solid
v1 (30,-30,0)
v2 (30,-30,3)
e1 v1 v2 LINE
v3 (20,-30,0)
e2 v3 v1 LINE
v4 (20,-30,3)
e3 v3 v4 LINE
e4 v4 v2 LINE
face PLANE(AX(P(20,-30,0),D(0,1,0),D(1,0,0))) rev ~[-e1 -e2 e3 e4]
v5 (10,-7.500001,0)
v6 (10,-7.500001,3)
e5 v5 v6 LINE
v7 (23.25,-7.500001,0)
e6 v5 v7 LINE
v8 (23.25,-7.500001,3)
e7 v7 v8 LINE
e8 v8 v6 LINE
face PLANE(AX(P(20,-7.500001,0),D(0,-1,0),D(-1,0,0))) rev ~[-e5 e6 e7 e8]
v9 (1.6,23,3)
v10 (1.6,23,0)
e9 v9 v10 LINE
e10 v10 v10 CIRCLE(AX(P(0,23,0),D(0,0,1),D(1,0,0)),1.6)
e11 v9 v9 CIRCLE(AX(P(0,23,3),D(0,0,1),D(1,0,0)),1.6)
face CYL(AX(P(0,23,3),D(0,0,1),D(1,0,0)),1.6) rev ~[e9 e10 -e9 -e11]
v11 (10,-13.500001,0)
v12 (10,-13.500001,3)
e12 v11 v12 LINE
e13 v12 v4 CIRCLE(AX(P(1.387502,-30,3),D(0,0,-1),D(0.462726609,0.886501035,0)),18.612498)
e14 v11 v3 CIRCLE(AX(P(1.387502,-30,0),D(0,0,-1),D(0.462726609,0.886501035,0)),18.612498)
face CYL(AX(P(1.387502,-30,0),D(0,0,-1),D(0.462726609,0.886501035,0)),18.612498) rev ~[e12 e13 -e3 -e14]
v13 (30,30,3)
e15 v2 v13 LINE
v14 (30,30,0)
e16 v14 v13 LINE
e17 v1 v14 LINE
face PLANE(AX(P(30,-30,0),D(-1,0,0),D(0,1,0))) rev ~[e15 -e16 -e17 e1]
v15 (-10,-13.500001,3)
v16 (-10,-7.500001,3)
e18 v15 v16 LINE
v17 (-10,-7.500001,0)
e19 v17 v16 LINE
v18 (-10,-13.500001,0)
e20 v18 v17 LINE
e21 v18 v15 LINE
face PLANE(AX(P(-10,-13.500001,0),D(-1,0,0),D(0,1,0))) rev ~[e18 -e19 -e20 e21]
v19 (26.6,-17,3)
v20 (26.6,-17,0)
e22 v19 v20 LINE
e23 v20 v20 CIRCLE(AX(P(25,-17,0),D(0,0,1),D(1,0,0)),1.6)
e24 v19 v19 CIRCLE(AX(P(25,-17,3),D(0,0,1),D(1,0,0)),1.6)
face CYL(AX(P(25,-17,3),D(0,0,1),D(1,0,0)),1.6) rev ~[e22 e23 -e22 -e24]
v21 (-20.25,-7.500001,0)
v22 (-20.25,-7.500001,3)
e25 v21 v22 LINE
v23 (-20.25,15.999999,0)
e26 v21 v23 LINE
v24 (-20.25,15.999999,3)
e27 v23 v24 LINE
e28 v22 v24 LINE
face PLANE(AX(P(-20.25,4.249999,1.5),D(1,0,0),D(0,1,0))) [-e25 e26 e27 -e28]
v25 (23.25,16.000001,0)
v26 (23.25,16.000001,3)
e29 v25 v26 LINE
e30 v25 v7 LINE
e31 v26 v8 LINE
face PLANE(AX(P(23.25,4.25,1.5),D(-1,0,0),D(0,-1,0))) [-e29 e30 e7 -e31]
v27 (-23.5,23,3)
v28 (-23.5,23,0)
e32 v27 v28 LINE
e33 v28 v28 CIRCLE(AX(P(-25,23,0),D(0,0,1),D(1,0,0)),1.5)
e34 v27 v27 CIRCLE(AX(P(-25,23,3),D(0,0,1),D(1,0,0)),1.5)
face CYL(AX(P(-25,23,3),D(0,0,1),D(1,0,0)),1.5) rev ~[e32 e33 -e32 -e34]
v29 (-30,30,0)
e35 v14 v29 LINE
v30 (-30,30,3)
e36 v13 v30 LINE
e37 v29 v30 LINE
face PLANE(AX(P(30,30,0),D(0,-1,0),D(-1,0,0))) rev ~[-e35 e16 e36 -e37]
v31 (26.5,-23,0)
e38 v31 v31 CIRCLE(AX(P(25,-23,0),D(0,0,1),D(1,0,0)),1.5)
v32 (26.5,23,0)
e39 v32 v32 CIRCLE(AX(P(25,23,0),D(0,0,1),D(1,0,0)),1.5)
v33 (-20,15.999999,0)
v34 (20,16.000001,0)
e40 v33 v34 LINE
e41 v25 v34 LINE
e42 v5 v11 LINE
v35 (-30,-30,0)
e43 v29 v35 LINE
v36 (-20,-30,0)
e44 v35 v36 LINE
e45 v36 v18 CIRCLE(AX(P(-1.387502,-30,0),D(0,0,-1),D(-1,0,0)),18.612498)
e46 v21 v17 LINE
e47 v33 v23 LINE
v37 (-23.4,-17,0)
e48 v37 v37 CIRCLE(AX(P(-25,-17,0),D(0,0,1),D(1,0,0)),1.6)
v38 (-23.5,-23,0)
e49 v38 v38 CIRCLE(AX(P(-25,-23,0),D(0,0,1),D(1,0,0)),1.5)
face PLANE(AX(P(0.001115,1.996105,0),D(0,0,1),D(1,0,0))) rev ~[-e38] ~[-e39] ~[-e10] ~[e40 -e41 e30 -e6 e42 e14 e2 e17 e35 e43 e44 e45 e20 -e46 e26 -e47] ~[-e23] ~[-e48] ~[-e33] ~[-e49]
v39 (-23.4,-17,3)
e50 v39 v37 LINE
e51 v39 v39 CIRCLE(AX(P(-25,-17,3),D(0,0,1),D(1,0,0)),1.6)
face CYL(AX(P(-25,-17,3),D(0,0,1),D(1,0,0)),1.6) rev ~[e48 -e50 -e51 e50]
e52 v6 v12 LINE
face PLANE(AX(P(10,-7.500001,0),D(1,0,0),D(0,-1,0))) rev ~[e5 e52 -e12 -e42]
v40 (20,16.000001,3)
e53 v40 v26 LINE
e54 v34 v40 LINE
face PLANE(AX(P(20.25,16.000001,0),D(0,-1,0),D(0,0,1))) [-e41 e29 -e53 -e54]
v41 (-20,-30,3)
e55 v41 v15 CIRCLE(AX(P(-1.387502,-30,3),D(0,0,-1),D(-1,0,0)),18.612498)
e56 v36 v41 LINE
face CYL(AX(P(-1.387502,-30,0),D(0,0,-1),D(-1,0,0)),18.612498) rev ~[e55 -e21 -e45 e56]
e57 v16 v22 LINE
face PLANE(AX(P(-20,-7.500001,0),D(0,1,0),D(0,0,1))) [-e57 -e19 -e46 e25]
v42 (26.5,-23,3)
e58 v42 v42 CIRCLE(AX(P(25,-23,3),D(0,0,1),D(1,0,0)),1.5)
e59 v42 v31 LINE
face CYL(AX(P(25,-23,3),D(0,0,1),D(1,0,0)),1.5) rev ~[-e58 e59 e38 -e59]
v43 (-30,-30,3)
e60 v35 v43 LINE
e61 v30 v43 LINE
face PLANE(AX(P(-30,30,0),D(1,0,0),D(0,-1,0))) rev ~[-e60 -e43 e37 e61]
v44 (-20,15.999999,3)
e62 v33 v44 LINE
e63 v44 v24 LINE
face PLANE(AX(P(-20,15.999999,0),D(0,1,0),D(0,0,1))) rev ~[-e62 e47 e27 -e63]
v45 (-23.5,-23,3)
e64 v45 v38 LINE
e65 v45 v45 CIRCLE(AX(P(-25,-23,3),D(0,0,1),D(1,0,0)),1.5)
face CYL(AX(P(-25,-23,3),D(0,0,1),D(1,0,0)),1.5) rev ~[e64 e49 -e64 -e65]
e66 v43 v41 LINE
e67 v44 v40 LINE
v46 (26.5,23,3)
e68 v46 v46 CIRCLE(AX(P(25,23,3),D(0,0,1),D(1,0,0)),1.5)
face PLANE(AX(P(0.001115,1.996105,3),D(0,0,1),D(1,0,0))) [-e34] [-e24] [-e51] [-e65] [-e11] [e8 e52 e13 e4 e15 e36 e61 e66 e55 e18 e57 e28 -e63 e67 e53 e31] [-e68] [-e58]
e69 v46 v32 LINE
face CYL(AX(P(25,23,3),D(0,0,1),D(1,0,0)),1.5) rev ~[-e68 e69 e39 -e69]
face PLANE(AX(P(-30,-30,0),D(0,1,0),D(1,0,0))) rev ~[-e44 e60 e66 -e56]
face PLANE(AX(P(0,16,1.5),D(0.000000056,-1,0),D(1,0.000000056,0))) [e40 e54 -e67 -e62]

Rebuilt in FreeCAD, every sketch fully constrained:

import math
import FreeCAD as App
import Part
import Sketcher

V = App.Vector
Q = App.Units.Quantity


def add_polygon(sketch, points):
    """Adds a closed chain of lines whose ends are joined by coincident constraints."""
    first, n = sketch.GeometryCount, len(points)
    for a, b in zip(points, points[1:] + points[:1]):
        sketch.addGeometry(Part.LineSegment(App.Vector(*a, 0), App.Vector(*b, 0)), False)
    for i in range(n):
        sketch.addConstraint(Sketcher.Constraint("Coincident", first + i, 2, first + (i + 1) % n, 1))

doc = App.newDocument("Part")
body = doc.addObject("PartDesign::Body", "Body")

# Sketch on XY plane
sketch1 = body.newObject("Sketcher::SketchObject", "Sketch")
sketch1.AttachmentSupport = (doc.getObject("XY_Plane"), [""])
sketch1.MapMode = "FlatFace"
sketch1.addGeometry([
    Part.LineSegment(V(30, -30, 0), V(30, 30, 0)),  # 0
    Part.LineSegment(V(30, 30, 0), V(-30, 30, 0)),  # 1
    Part.LineSegment(V(-30, 30, 0), V(-30, -30, 0)),  # 2
    Part.LineSegment(V(-30, -30, 0), V(-20, -30, 0)),  # 3
    Part.ArcOfCircle(Part.Circle(V(-1, -30, 0), V(0, 0, 1), 19), math.radians(118), math.radians(180)),  # 4
    Part.LineSegment(V(-10, -14, 0), V(-10, -8, 0)),  # 5
    Part.LineSegment(V(-10, -8, 0), V(-20, -8, 0)),  # 6
    Part.LineSegment(V(-20, -8, 0), V(-20, 15, 0)),  # 7
    Part.LineSegment(V(-20, 15, 0), V(20, 16, 0)),  # 8
    Part.LineSegment(V(20, 16, 0), V(20, -8, 0)),  # 9
    Part.LineSegment(V(20, -8, 0), V(10, -8, 0)),  # 10
    Part.LineSegment(V(10, -8, 0), V(10, -14, 0)),  # 11
    Part.ArcOfCircle(Part.Circle(V(1, -30, 0), V(0, 0, 1), 19), math.radians(0), math.radians(62)),  # 12
    Part.LineSegment(V(20, -30, 0), V(30, -30, 0)),  # 13
], False)
sketch1.addConstraint([
    Sketcher.Constraint("Coincident", 0, 2, 1, 1),
    Sketcher.Constraint("Coincident", 1, 2, 2, 1),
    Sketcher.Constraint("Coincident", 2, 2, 3, 1),
    Sketcher.Constraint("Coincident", 3, 2, 4, 2),
    Sketcher.Constraint("Coincident", 4, 1, 5, 1),
    Sketcher.Constraint("Coincident", 5, 2, 6, 1),
    Sketcher.Constraint("Coincident", 6, 2, 7, 1),
    Sketcher.Constraint("Coincident", 7, 2, 8, 1),
    Sketcher.Constraint("Coincident", 8, 2, 9, 1),
    Sketcher.Constraint("Coincident", 9, 2, 10, 1),
    Sketcher.Constraint("Coincident", 10, 2, 11, 1),
    Sketcher.Constraint("Coincident", 11, 2, 12, 2),
    Sketcher.Constraint("Coincident", 12, 1, 13, 1),
    Sketcher.Constraint("Coincident", 13, 2, 0, 1),
    Sketcher.Constraint("Vertical", 0),
    Sketcher.Constraint("Horizontal", 1),
    Sketcher.Constraint("Vertical", 2),
    Sketcher.Constraint("Horizontal", 3),
    Sketcher.Constraint("Vertical", 5),
    Sketcher.Constraint("Horizontal", 6),
    Sketcher.Constraint("Vertical", 7),
    Sketcher.Constraint("Vertical", 9),
    Sketcher.Constraint("Horizontal", 10),
    Sketcher.Constraint("Vertical", 11),
    Sketcher.Constraint("Horizontal", 13),
    Sketcher.Constraint("Equal", 4, 12),
    Sketcher.Constraint("Symmetric", 0, 2, 2, 2, -1, 1),
    Sketcher.Constraint("Symmetric", 4, 3, 12, 3, -2),
    Sketcher.Constraint("Symmetric", 7, 2, 8, 2, -2),
    Sketcher.Constraint("Symmetric", 5, 2, 10, 2, -2),
    Sketcher.Constraint("Horizontal", 12, 3, 2, 2),
    Sketcher.Constraint("Horizontal", 3, 2, 12, 1),
    Sketcher.Constraint("Vertical", 3, 2, 6, 2),
    Sketcher.Constraint("Equal", 3, 6),
    Sketcher.Constraint("Equal", 1, 0),
    Sketcher.Constraint("DistanceX", 1, 2, 1, 1, Q("60 mm")),
    Sketcher.Constraint("DistanceX", 3, 1, 3, 2, Q("10 mm")),
    Sketcher.Constraint("DistanceY", 5, 1, 5, 2, Q("6 mm")),
    Sketcher.Constraint("DistanceY", 7, 1, 7, 2, Q("23 mm")),
    Sketcher.Constraint("DistanceY", 4, 1, -1, 1, Q("13.500001 mm")),
])
pad1 = body.newObject("PartDesign::Pad", "Pad")
pad1.Profile = sketch1
pad1.Length = 3

# Sketch on XY plane
sketch2 = body.newObject("Sketcher::SketchObject", "Sketch001")
sketch2.AttachmentSupport = (doc.getObject("XY_Plane"), [""])
sketch2.MapMode = "FlatFace"
sketch2.AttachmentOffset = App.Placement(V(0, 0, 3), App.Rotation())
sketch2.addGeometry([
    Part.Circle(V(-25, 23, 0), V(0, 0, 1), 1.5),
    Part.Circle(V(25, 23, 0), V(0, 0, 1), 1.5),
    Part.Circle(V(-25, -23, 0), V(0, 0, 1), 1.5),
    Part.Circle(V(25, -23, 0), V(0, 0, 1), 1.5),
], False)
sketch2.addConstraint([
    Sketcher.Constraint("Equal", 0, 1),
    Sketcher.Constraint("Equal", 1, 2),
    Sketcher.Constraint("Equal", 2, 3),
    Sketcher.Constraint("Symmetric", 1, 3, 2, 3, -1, 1),
    Sketcher.Constraint("Symmetric", 0, 3, 3, 3, -1, 1),
    Sketcher.Constraint("Symmetric", 0, 3, 1, 3, -2),
    Sketcher.Constraint("Diameter", 0, Q("3 mm")),
    Sketcher.Constraint("DistanceX", 0, 3, -1, 1, Q("25 mm")),
    Sketcher.Constraint("DistanceY", -1, 1, 0, 3, Q("23 mm")),
])
pocket1 = body.newObject("PartDesign::Pocket", "Pocket")
pocket1.Profile = sketch2
pocket1.Type = "ThroughAll"

# Sketch on XY plane
sketch3 = body.newObject("Sketcher::SketchObject", "Sketch002")
sketch3.AttachmentSupport = (doc.getObject("XY_Plane"), [""])
sketch3.MapMode = "FlatFace"
sketch3.AttachmentOffset = App.Placement(V(0, 0, 3), App.Rotation())
sketch3.addGeometry([
    Part.Circle(V(25, -17, 0), V(0, 0, 1), 1.6),
    Part.Circle(V(-25, -17, 0), V(0, 0, 1), 1.6),
    Part.Circle(V(0, 23, 0), V(0, 0, 1), 1.6),
], False)
sketch3.addConstraint([
    Sketcher.Constraint("Equal", 0, 1),
    Sketcher.Constraint("Equal", 1, 2),
    Sketcher.Constraint("Symmetric", 0, 3, 1, 3, -2),
    Sketcher.Constraint("PointOnObject", 2, 3, -2),
    Sketcher.Constraint("Diameter", 0, Q("3.2 mm")),
    Sketcher.Constraint("DistanceX", -1, 1, 0, 3, Q("25 mm")),
    Sketcher.Constraint("DistanceY", 0, 3, -1, 1, Q("17 mm")),
    Sketcher.Constraint("DistanceY", -1, 1, 2, 3, Q("23 mm")),
])
pocket2 = body.newObject("PartDesign::Pocket", "Pocket001")
pocket2.Profile = sketch3
pocket2.Type = "ThroughAll"

# Sketch on XZ plane
sketch4 = body.newObject("Sketcher::SketchObject", "Sketch003")
sketch4.AttachmentSupport = (doc.getObject("XZ_Plane"), [""])
sketch4.MapMode = "FlatFace"
sketch4.AttachmentOffset = App.Placement(V(0, 0, -15.5), App.Rotation())
add_polygon(sketch4, [(-20, 3), (-20, 0), (20, 0), (20, 3)])  # lines 0-3
sketch4.addConstraint([
    Sketcher.Constraint("Vertical", 0),
    Sketcher.Constraint("Horizontal", 1),
    Sketcher.Constraint("Vertical", 2),
    Sketcher.Constraint("Horizontal", 3),
    Sketcher.Constraint("Symmetric", 0, 2, 1, 2, -1, 1),
    Sketcher.Constraint("DistanceX", 1, 1, 1, 2, Q("40 mm")),
    Sketcher.Constraint("DistanceY", 0, 2, 0, 1, Q("3 mm")),
])
pocket3 = body.newObject("PartDesign::Pocket", "Pocket002")
pocket3.Profile = sketch4
pocket3.Length = 0.5

# Sketch on YZ plane
sketch5 = body.newObject("Sketcher::SketchObject", "Sketch004")
sketch5.AttachmentSupport = (doc.getObject("YZ_Plane"), [""])
sketch5.MapMode = "FlatFace"
sketch5.AttachmentOffset = App.Placement(V(0, 0, -20), App.Rotation())
add_polygon(sketch5, [(-7.5, 3), (-7.5, 0), (16, 0), (16, 3)])  # lines 0-3
sketch5.addConstraint([
    Sketcher.Constraint("Vertical", 0),
    Sketcher.Constraint("Horizontal", 1),
    Sketcher.Constraint("Vertical", 2),
    Sketcher.Constraint("Horizontal", 3),
    Sketcher.Constraint("PointOnObject", 0, 2, -1),
    Sketcher.Constraint("DistanceY", 0, 2, 0, 1, Q("3 mm")),
    Sketcher.Constraint("DistanceX", 1, 1, 1, 2, Q("23.5 mm")),
    Sketcher.Constraint("DistanceX", -1, 1, 1, 2, Q("15.999999 mm")),
])
pocket4 = body.newObject("PartDesign::Pocket", "Pocket003")
pocket4.Profile = sketch5
pocket4.Length = 0.25

# Sketch on YZ plane
sketch6 = body.newObject("Sketcher::SketchObject", "Sketch005")
sketch6.AttachmentSupport = (doc.getObject("YZ_Plane"), [""])
sketch6.MapMode = "FlatFace"
sketch6.AttachmentOffset = App.Placement(V(0, 0, 20), App.Rotation())
add_polygon(sketch6, [(16, 3), (16, 0), (-7.5, 0), (-7.5, 3)])  # lines 0-3
sketch6.addConstraint([
    Sketcher.Constraint("Vertical", 0),
    Sketcher.Constraint("Horizontal", 1),
    Sketcher.Constraint("Vertical", 2),
    Sketcher.Constraint("Horizontal", 3),
    Sketcher.Constraint("PointOnObject", 0, 2, -1),
    Sketcher.Constraint("DistanceY", 0, 2, 0, 1, Q("3 mm")),
    Sketcher.Constraint("DistanceX", -1, 1, 0, 2, Q("16.000001 mm")),
    Sketcher.Constraint("DistanceX", 1, 2, -1, 1, Q("7.500001 mm")),
])
pocket5 = body.newObject("PartDesign::Pocket", "Pocket004")
pocket5.Profile = sketch6
pocket5.Length = 0.25
pocket5.Reversed = True

# Sketch on YZ plane
sketch7 = body.newObject("Sketcher::SketchObject", "Sketch006")
sketch7.AttachmentSupport = (doc.getObject("YZ_Plane"), [""])
sketch7.MapMode = "FlatFace"
sketch7.AttachmentOffset = App.Placement(V(0, 0, 20.25), App.Rotation())
add_polygon(sketch7, [(16, 3), (16, 0), (-7.5, 0), (-7.5, 3)])  # lines 0-3
sketch7.addConstraint([
    Sketcher.Constraint("Vertical", 0),
    Sketcher.Constraint("Horizontal", 1),
    Sketcher.Constraint("Vertical", 2),
    Sketcher.Constraint("Horizontal", 3),
    Sketcher.Constraint("PointOnObject", 0, 2, -1),
    Sketcher.Constraint("DistanceY", 0, 2, 0, 1, Q("3 mm")),
    Sketcher.Constraint("DistanceX", -1, 1, 0, 2, Q("16.000001 mm")),
    Sketcher.Constraint("DistanceX", 1, 2, -1, 1, Q("7.500001 mm")),
])
pocket6 = body.newObject("PartDesign::Pocket", "Pocket005")
pocket6.Profile = sketch7
pocket6.Length = 3
pocket6.Reversed = True

doc.recompute()
